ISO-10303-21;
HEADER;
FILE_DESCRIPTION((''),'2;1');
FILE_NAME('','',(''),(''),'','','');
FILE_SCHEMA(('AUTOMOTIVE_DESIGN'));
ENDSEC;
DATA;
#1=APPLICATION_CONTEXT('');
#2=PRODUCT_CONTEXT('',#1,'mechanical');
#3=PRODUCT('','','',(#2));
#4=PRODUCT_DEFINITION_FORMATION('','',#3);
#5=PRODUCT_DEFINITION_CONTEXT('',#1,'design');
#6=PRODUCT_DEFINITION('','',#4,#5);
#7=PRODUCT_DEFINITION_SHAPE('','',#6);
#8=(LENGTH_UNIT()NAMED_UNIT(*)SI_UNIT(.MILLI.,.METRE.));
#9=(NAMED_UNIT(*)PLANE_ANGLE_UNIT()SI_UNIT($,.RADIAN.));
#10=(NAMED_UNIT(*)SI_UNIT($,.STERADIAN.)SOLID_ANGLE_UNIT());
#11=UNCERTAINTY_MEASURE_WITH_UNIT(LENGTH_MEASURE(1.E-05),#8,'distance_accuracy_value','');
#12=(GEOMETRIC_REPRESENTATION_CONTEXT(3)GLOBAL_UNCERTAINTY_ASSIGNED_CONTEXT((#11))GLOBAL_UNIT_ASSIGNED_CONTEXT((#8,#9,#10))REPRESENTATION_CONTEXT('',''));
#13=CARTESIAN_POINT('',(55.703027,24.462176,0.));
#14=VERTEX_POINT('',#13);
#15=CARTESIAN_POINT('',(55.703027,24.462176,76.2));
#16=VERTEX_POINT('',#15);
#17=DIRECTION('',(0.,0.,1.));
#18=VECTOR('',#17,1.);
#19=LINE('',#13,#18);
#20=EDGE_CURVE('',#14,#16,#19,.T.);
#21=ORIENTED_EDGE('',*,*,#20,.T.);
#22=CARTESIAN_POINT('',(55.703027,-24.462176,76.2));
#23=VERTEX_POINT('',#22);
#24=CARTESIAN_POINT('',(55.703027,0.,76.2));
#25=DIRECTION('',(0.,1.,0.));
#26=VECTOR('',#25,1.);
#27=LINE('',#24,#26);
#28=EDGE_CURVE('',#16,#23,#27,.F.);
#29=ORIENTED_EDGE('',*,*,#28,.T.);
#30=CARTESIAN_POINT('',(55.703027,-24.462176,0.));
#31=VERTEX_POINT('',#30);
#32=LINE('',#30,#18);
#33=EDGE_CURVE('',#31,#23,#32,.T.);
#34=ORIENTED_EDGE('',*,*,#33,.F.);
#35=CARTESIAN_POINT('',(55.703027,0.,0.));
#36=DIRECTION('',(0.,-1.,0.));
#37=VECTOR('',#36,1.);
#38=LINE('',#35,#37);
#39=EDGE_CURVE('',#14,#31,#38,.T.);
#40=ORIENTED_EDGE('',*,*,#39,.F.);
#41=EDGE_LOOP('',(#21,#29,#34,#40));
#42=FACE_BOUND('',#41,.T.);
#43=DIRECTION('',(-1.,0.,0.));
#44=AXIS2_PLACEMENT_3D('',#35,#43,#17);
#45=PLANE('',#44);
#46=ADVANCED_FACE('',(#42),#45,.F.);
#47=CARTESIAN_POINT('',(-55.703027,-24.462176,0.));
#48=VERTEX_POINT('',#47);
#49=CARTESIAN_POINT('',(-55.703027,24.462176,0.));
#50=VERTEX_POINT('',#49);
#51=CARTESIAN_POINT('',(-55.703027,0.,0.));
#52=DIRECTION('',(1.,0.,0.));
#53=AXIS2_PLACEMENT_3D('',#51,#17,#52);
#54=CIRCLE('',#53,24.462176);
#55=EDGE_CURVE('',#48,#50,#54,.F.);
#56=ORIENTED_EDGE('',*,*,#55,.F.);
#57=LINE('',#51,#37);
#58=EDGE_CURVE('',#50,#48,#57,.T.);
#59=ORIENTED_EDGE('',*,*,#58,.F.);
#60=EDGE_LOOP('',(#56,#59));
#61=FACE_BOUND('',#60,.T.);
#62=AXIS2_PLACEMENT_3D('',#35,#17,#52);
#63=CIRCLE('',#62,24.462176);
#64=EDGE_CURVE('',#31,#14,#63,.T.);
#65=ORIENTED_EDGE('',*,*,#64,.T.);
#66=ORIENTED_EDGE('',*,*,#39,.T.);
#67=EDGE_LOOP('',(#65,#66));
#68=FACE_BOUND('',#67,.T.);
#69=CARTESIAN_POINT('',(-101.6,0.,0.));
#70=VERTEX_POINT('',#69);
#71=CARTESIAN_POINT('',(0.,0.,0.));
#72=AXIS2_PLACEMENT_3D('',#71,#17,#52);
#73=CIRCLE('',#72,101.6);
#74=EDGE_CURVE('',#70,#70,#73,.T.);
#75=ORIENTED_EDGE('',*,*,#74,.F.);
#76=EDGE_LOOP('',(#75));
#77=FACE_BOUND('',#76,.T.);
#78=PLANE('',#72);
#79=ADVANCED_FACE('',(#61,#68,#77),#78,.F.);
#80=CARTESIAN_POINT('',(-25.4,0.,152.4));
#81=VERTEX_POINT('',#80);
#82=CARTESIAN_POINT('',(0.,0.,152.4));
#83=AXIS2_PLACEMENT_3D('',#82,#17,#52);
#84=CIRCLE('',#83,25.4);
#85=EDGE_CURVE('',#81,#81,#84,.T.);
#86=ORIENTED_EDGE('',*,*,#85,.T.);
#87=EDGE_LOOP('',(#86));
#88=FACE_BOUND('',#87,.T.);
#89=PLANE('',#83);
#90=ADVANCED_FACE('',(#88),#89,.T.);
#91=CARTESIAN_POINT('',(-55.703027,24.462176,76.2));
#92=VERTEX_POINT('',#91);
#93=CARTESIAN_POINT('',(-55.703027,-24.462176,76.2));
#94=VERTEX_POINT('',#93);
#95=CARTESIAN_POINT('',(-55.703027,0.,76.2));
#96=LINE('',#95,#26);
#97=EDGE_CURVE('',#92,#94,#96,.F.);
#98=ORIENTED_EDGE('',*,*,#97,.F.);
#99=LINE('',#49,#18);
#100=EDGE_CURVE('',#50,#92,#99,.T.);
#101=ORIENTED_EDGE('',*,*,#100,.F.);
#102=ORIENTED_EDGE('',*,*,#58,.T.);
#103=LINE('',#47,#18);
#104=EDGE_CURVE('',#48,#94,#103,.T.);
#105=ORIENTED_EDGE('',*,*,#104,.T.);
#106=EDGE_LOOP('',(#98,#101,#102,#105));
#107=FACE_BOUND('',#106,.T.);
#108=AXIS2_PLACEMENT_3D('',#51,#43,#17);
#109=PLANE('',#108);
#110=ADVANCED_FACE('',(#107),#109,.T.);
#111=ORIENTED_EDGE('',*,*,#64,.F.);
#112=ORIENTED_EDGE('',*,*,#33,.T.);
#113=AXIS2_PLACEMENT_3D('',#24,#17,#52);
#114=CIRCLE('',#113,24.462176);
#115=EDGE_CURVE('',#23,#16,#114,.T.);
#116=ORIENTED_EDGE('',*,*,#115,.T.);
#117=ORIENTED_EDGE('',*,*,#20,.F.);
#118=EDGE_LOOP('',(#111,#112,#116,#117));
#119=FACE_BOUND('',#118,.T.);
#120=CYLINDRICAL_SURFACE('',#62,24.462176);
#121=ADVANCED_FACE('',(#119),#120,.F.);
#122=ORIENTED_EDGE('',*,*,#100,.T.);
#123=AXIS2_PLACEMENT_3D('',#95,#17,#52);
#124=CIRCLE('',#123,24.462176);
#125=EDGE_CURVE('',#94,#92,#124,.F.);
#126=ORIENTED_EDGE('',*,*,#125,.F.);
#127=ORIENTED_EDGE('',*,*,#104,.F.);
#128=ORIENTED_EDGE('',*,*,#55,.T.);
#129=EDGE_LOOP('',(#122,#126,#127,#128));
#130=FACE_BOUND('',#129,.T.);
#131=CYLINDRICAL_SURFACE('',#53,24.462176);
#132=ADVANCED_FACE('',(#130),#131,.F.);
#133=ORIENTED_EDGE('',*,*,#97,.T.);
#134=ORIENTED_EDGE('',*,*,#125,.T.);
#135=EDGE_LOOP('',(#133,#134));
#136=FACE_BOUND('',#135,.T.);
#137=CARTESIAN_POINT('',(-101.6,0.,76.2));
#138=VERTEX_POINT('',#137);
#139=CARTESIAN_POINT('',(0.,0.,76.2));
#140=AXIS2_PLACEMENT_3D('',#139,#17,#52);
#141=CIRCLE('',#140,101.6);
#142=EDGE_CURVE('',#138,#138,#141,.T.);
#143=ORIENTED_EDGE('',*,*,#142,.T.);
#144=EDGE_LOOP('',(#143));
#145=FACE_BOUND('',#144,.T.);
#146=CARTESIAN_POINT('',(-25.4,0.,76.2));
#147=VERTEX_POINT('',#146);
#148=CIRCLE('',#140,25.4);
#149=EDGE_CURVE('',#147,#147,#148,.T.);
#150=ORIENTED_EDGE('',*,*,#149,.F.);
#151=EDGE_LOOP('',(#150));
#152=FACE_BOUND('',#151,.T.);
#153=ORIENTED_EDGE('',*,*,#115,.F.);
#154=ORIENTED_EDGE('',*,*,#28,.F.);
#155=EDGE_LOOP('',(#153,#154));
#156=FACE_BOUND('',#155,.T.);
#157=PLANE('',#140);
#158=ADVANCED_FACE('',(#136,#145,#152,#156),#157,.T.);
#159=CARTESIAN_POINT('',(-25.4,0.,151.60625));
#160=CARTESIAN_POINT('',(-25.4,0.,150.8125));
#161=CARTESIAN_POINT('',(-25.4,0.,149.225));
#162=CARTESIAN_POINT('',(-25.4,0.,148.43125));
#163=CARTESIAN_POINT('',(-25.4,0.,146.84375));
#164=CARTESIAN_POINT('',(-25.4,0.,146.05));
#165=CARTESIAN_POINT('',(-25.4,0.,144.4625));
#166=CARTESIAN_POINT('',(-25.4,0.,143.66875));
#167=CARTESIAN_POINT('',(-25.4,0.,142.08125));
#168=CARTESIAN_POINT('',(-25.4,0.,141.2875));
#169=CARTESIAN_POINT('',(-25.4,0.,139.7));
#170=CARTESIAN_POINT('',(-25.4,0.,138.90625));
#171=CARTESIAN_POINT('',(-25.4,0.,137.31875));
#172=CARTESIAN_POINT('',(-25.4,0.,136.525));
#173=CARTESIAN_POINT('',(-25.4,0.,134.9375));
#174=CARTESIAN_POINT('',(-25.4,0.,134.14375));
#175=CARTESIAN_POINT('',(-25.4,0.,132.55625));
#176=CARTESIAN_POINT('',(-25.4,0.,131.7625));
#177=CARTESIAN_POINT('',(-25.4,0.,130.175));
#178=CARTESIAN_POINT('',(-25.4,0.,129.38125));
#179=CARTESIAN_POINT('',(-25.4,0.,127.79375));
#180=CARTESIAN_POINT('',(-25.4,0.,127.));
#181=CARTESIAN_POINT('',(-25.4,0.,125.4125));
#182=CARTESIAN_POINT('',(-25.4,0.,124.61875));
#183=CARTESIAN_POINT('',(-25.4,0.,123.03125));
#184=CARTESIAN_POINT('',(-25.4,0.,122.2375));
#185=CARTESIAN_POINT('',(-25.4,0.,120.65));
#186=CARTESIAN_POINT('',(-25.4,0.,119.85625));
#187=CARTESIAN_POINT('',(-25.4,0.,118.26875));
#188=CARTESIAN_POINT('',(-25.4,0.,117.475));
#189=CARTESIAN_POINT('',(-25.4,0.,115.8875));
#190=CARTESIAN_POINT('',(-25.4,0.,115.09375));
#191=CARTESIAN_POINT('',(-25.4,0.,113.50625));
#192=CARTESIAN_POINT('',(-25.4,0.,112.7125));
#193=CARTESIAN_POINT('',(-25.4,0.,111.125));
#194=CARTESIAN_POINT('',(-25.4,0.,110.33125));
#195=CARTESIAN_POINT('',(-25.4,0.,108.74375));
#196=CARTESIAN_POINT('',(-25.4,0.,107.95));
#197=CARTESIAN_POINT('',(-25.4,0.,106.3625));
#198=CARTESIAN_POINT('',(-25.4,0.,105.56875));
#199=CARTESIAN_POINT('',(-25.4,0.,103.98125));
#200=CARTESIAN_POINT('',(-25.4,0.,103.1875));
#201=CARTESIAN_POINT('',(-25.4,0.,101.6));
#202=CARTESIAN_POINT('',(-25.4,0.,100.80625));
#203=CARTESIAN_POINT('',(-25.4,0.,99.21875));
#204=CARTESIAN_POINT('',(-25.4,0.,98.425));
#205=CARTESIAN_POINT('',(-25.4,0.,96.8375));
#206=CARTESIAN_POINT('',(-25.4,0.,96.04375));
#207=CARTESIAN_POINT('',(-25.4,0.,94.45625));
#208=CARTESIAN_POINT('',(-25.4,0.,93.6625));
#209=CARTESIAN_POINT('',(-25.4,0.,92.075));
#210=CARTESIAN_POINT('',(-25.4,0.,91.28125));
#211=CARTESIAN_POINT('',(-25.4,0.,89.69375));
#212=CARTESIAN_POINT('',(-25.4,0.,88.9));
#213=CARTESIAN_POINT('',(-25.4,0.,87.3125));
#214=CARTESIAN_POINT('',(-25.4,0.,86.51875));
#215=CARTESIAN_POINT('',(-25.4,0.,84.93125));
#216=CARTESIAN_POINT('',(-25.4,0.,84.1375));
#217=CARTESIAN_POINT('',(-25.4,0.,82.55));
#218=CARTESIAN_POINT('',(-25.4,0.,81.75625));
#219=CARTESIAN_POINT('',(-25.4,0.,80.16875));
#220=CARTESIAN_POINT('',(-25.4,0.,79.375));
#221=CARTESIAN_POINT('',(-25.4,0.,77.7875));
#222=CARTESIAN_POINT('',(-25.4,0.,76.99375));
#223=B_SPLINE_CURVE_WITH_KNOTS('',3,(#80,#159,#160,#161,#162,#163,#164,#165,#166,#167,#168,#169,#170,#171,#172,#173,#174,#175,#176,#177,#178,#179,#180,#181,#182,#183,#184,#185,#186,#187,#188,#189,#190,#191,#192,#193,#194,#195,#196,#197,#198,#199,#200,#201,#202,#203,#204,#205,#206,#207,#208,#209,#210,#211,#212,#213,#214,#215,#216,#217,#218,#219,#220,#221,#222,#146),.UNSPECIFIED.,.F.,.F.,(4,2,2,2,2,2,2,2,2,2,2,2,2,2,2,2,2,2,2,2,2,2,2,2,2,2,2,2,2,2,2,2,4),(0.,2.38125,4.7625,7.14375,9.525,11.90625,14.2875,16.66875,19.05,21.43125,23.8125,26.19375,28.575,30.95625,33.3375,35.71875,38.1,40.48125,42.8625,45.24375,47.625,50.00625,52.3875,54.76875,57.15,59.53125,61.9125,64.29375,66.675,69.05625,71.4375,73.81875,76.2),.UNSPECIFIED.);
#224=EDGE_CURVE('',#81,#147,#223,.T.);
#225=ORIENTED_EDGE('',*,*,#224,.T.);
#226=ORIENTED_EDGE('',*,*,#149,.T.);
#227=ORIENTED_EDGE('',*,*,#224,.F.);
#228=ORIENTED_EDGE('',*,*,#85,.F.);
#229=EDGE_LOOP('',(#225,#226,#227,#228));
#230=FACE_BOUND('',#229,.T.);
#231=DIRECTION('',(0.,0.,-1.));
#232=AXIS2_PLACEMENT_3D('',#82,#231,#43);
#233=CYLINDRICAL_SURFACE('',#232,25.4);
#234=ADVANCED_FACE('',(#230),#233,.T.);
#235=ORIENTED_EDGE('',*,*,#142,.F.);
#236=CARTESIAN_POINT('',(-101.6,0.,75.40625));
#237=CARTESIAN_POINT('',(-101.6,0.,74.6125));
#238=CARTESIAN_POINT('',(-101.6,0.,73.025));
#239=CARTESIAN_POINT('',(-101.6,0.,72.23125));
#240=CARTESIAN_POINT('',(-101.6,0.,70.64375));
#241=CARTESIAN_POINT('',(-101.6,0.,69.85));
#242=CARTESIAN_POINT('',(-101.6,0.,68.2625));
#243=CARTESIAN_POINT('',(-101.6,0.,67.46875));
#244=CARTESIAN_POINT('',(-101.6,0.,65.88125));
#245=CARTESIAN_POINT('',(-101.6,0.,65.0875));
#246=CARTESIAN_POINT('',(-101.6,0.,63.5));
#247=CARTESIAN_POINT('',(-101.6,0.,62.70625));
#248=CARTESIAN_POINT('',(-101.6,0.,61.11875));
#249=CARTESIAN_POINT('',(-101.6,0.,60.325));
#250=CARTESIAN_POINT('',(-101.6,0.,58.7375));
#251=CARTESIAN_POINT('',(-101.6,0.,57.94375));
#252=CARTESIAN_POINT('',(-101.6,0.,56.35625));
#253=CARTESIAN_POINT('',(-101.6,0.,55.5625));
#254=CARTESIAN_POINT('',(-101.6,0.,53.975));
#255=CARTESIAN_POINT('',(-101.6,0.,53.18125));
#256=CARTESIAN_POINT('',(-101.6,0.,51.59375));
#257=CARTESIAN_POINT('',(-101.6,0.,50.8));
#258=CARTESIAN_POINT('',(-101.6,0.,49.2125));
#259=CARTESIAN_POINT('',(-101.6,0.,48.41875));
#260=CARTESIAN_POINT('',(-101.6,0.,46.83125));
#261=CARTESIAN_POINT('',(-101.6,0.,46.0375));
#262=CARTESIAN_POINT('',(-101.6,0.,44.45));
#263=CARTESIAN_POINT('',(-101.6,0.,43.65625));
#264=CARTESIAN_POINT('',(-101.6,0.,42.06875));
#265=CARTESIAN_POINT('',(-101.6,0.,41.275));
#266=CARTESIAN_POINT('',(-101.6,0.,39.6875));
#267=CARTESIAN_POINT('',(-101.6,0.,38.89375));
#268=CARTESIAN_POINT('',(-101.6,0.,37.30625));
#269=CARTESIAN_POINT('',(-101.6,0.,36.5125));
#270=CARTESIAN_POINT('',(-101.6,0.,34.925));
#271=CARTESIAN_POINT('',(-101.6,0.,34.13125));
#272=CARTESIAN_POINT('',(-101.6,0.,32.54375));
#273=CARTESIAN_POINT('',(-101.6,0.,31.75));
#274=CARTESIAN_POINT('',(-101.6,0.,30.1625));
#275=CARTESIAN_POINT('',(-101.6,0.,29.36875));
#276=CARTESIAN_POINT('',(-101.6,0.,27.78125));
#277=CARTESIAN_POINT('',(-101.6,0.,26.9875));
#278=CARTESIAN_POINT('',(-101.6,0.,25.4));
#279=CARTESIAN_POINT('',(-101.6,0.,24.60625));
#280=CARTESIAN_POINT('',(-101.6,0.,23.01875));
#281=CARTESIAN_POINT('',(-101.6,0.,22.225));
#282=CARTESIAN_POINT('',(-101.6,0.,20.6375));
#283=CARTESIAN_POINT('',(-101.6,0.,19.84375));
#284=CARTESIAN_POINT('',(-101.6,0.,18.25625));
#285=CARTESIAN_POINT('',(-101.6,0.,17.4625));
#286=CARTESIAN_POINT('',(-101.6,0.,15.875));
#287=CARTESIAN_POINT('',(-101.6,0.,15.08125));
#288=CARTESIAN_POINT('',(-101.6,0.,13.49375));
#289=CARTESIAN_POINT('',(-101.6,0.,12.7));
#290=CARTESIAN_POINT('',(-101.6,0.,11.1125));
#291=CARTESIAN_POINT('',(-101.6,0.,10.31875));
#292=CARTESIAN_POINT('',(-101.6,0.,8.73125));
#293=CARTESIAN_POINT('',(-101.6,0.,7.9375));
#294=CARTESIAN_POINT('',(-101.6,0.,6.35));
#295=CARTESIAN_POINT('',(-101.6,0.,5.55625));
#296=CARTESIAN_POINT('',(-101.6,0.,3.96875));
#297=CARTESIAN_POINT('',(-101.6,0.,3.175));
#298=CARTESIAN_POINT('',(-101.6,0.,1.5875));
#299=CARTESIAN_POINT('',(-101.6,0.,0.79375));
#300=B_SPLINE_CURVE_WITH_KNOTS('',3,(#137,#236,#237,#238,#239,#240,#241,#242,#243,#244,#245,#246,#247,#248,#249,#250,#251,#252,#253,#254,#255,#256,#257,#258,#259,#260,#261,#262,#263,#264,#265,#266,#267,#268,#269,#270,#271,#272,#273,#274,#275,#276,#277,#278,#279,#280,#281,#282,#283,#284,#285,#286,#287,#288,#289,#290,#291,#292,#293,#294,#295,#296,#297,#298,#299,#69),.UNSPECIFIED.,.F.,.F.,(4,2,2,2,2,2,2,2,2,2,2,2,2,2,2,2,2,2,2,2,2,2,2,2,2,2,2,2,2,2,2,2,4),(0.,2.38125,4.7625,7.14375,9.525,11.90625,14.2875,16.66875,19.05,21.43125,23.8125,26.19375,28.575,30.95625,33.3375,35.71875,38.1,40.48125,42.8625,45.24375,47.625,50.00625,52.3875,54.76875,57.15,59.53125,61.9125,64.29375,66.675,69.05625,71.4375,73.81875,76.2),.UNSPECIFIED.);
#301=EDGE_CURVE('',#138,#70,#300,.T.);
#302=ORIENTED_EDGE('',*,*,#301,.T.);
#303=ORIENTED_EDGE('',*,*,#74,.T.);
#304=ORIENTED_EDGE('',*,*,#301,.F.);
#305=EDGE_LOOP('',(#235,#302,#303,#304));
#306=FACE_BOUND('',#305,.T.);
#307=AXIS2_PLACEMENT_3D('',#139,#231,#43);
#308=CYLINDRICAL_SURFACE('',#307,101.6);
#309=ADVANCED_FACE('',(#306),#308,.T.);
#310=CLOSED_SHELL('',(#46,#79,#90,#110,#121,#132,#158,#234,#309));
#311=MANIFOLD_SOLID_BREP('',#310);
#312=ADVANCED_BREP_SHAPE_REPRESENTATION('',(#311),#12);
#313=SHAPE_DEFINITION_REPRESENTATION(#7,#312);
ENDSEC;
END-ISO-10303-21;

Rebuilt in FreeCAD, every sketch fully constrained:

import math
import FreeCAD as App
import Part
import Sketcher

V = App.Vector
Q = App.Units.Quantity

doc = App.newDocument("Part")
params = doc.addObject("Spreadsheet::Sheet", "Params")
for row, (alias, value) in enumerate([
    ("sketch1_diameter", "8 in"),
    ("pad1_length", "3 in"),
    ("sketch3_diameter", "2 in"),
    ("pad2_length", "3 in"),
], start=1):
    params.set(f"A{row}", alias)
    params.set(f"B{row}", "=" + value)
    params.setAlias(f"B{row}", alias)

body = doc.addObject("PartDesign::Body", "Body")

# Sketch on XY plane
sketch1 = body.newObject("Sketcher::SketchObject", "Sketch")
sketch1.AttachmentSupport = (doc.getObject("XY_Plane"), [""])
sketch1.MapMode = "FlatFace"
sketch1.addGeometry(Part.Circle(V(0, 0, 0), V(0, 0, 1), 101.6), False)
sketch1.addConstraint([
    Sketcher.Constraint("Coincident", 0, 3, -1, 1),
    Sketcher.Constraint("Diameter", 0, Q("8 in")),
])
sketch1.setExpression("Constraints[1]", "Params.sketch1_diameter")
pad1 = body.newObject("PartDesign::Pad", "Pad")
pad1.Profile = sketch1
pad1.setExpression("Length", "Params.pad1_length")

# Sketch on XY plane
sketch2 = body.newObject("Sketcher::SketchObject", "Sketch001")
sketch2.AttachmentSupport = (doc.getObject("XY_Plane"), [""])
sketch2.MapMode = "FlatFace"
sketch2.AttachmentOffset = App.Placement(V(0, 0, 3 * 25.4), App.Rotation())
sketch2.addGeometry([
    Part.ArcOfCircle(Part.Circle(V(-55.703027, 0, 0), V(0, 0, 1), 24.462176), math.radians(90), math.radians(270)),
    Part.LineSegment(V(-55.703027, -24.462176, 0), V(-55.703027, 24.462176, 0)),
    Part.LineSegment(V(55.703027, 24.462176, 0), V(55.703027, -24.462176, 0)),
    Part.ArcOfCircle(Part.Circle(V(55.703027, 0, 0), V(0, 0, 1), 24.462176), math.radians(-90), math.radians(90)),
], False)
sketch2.addConstraint([
    Sketcher.Constraint("Coincident", 0, 1, 1, 2),
    Sketcher.Constraint("Coincident", 1, 1, 0, 2),
    Sketcher.Constraint("Coincident", 2, 1, 3, 2),
    Sketcher.Constraint("Coincident", 3, 1, 2, 2),
    Sketcher.Constraint("Vertical", 1),
    Sketcher.Constraint("Vertical", 2),
    Sketcher.Constraint("Equal", 0, 3),
    Sketcher.Constraint("Symmetric", 0, 3, 3, 3, -1, 1),
    Sketcher.Constraint("Symmetric", 0, 1, 2, 1, -2),
    Sketcher.Constraint("Vertical", 3, 3, 2, 1),
    Sketcher.Constraint("Radius", 0, Q("24.462176 mm")),
    Sketcher.Constraint("DistanceX", 0, 3, -1, 1, Q("55.703027 mm")),
])
pocket1 = body.newObject("PartDesign::Pocket", "Pocket")
pocket1.Profile = sketch2
pocket1.Type = "ThroughAll"
pocket1.Midplane = True

# Sketch on XY plane
sketch3 = body.newObject("Sketcher::SketchObject", "Sketch002")
sketch3.AttachmentSupport = (doc.getObject("XY_Plane"), [""])
sketch3.MapMode = "FlatFace"
sketch3.AttachmentOffset = App.Placement(V(0, 0, 3 * 25.4), App.Rotation())
sketch3.addGeometry(Part.Circle(V(0, 0, 0), V(0, 0, 1), 25.4), False)
sketch3.addConstraint([
    Sketcher.Constraint("Coincident", 0, 3, -1, 1),
    Sketcher.Constraint("Diameter", 0, Q("2 in")),
])
sketch3.setExpression("Constraints[1]", "Params.sketch3_diameter")
pad2 = body.newObject("PartDesign::Pad", "Pad001")
pad2.Profile = sketch3
pad2.setExpression("Length", "Params.pad2_length")

doc.recompute()
